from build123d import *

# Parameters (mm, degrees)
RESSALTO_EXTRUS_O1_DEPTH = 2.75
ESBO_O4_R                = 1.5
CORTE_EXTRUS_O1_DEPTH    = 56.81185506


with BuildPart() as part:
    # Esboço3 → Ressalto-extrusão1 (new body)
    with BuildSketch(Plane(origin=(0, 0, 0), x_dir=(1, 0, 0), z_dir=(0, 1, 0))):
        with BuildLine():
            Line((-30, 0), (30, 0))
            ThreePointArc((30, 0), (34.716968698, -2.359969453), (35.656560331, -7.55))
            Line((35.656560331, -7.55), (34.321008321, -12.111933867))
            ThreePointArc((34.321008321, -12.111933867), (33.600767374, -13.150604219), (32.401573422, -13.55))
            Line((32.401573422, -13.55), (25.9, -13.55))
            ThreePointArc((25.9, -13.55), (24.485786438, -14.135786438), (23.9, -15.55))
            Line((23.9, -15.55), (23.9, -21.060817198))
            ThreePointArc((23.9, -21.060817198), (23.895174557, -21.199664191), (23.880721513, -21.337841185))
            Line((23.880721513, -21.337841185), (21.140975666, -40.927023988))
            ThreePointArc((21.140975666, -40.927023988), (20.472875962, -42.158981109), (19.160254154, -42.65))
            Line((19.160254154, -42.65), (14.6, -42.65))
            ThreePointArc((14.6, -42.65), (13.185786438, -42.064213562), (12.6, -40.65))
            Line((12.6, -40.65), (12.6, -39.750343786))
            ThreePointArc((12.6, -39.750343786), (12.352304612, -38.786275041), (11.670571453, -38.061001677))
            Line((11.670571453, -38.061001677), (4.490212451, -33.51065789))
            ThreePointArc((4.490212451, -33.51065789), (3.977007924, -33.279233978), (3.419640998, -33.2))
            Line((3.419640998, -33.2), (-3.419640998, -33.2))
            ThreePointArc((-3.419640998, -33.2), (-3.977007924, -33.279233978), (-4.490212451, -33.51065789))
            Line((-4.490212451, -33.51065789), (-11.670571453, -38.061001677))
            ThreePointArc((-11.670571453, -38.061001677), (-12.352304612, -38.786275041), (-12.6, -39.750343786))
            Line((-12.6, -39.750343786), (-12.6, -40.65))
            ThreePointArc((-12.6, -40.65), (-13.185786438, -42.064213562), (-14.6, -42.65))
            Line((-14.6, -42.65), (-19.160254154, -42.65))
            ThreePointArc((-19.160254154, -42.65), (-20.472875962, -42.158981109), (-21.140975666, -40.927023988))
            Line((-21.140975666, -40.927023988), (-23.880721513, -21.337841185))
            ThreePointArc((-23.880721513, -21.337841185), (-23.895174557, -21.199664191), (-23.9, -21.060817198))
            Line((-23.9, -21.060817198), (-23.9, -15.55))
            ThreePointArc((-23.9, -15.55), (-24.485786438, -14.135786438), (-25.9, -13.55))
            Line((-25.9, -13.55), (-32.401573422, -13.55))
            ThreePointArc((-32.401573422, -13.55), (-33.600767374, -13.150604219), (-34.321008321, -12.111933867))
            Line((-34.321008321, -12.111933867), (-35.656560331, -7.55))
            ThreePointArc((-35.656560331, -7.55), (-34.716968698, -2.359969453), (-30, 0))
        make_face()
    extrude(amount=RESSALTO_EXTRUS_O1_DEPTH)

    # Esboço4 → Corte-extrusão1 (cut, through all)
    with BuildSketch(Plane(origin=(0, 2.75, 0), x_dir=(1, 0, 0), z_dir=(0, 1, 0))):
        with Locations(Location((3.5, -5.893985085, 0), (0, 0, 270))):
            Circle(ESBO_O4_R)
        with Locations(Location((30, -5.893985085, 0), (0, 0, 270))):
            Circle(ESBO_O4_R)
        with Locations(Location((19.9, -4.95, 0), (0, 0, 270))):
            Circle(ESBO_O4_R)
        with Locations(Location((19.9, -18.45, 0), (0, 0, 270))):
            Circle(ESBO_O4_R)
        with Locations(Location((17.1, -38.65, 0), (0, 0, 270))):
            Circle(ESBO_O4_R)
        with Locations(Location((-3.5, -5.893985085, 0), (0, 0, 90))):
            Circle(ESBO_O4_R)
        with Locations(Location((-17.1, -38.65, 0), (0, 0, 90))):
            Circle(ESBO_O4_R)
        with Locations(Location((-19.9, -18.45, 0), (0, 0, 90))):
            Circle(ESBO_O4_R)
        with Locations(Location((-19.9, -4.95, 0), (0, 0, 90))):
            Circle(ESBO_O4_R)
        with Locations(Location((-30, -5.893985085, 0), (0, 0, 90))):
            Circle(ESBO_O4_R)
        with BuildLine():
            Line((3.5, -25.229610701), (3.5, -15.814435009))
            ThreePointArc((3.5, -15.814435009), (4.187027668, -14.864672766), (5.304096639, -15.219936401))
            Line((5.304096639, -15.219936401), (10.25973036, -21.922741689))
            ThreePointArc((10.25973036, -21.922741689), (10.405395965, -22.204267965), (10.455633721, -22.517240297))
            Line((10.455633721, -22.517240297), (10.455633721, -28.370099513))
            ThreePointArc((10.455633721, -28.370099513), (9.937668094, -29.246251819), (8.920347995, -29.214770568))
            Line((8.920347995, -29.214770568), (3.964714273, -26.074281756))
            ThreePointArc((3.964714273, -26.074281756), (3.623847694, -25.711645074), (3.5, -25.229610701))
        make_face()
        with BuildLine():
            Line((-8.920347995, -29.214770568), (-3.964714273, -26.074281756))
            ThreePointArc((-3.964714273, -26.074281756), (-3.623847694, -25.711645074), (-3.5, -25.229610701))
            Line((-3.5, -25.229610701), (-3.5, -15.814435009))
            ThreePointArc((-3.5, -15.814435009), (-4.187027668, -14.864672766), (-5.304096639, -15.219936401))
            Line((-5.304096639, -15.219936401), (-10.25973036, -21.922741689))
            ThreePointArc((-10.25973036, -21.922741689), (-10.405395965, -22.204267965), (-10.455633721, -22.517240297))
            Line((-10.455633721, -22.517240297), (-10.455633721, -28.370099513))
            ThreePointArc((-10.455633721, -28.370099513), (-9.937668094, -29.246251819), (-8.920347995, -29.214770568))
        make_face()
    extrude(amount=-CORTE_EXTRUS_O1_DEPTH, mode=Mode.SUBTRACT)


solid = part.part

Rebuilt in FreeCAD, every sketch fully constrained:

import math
import FreeCAD as App
import Part
import Sketcher

doc = App.newDocument("Part")
body = doc.addObject("PartDesign::Body", "Body")

# Sketch on XZ plane
sketch1 = body.newObject("Sketcher::SketchObject", "Sketch")
sketch1.AttachmentSupport = (doc.getObject("XZ_Plane"), [""])
sketch1.MapMode = "FlatFace"
sketch1.addGeometry(Part.LineSegment(App.Vector(30, 0, 0), App.Vector(-30, 0, 0)), False)
sketch1.addGeometry(Part.ArcOfCircle(Part.Circle(App.Vector(-30, 5.89, 0), App.Vector(0, 0, 1), 5.89), math.radians(164), math.radians(270)), False)
sketch1.addGeometry(Part.LineSegment(App.Vector(-35.66, 7.55, 0), App.Vector(-34.32, 12.11, 0)), False)
sketch1.addGeometry(Part.ArcOfCircle(Part.Circle(App.Vector(-32.4, 11.55, 0), App.Vector(0, 0, 1), 2), math.radians(90), math.radians(164)), False)
sketch1.addGeometry(Part.LineSegment(App.Vector(-32.4, 13.55, 0), App.Vector(-25.9, 13.55, 0)), False)
sketch1.addGeometry(Part.ArcOfCircle(Part.Circle(App.Vector(-25.9, 15.55, 0), App.Vector(0, 0, 1), 2), math.radians(-90), math.radians(0)), False)
sketch1.addGeometry(Part.LineSegment(App.Vector(-23.9, 15.55, 0), App.Vector(-23.9, 21.06, 0)), False)
sketch1.addGeometry(Part.ArcOfCircle(Part.Circle(App.Vector(-21.9, 21.06, 0), App.Vector(0, 0, 1), 2), math.radians(172.04), math.radians(180)), False)
sketch1.addGeometry(Part.LineSegment(App.Vector(-23.88, 21.34, 0), App.Vector(-21.14, 40.93, 0)), False)
sketch1.addGeometry(Part.ArcOfCircle(Part.Circle(App.Vector(-19.16, 40.65, 0), App.Vector(0, 0, 1), 2), math.radians(90), math.radians(172)), False)
sketch1.addGeometry(Part.LineSegment(App.Vector(-19.16, 42.65, 0), App.Vector(-14.6, 42.65, 0)), False)
sketch1.addGeometry(Part.ArcOfCircle(Part.Circle(App.Vector(-14.6, 40.65, 0), App.Vector(0, 0, 1), 2), math.radians(0), math.radians(90)), False)
sketch1.addGeometry(Part.LineSegment(App.Vector(-12.6, 40.65, 0), App.Vector(-12.6, 39.75, 0)), False)
sketch1.addGeometry(Part.ArcOfCircle(Part.Circle(App.Vector(-10.6, 39.75, 0), App.Vector(0, 0, 1), 2), math.radians(-180), math.radians(-122)), False)
sketch1.addGeometry(Part.LineSegment(App.Vector(-11.67, 38.06, 0), App.Vector(-4.49, 33.51, 0)), False)
sketch1.addGeometry(Part.ArcOfCircle(Part.Circle(App.Vector(-3.42, 35.2, 0), App.Vector(0, 0, 1), 2), math.radians(-122), math.radians(-90)), False)
sketch1.addGeometry(Part.LineSegment(App.Vector(-3.42, 33.2, 0), App.Vector(3.42, 33.2, 0)), False)
sketch1.addGeometry(Part.ArcOfCircle(Part.Circle(App.Vector(3.42, 35.2, 0), App.Vector(0, 0, 1), 2), math.radians(-90), math.radians(-58)), False)
sketch1.addGeometry(Part.LineSegment(App.Vector(4.49, 33.51, 0), App.Vector(11.67, 38.06, 0)), False)
sketch1.addGeometry(Part.ArcOfCircle(Part.Circle(App.Vector(10.6, 39.75, 0), App.Vector(0, 0, 1), 2), math.radians(-58), math.radians(0)), False)
sketch1.addGeometry(Part.LineSegment(App.Vector(12.6, 39.75, 0), App.Vector(12.6, 40.65, 0)), False)
sketch1.addGeometry(Part.ArcOfCircle(Part.Circle(App.Vector(14.6, 40.65, 0), App.Vector(0, 0, 1), 2), math.radians(90), math.radians(180)), False)
sketch1.addGeometry(Part.LineSegment(App.Vector(14.6, 42.65, 0), App.Vector(19.16, 42.65, 0)), False)
sketch1.addGeometry(Part.ArcOfCircle(Part.Circle(App.Vector(19.16, 40.65, 0), App.Vector(0, 0, 1), 2), math.radians(8), math.radians(90)), False)
sketch1.addGeometry(Part.LineSegment(App.Vector(21.14, 40.93, 0), App.Vector(23.88, 21.34, 0)), False)
sketch1.addGeometry(Part.ArcOfCircle(Part.Circle(App.Vector(21.9, 21.06, 0), App.Vector(0, 0, 1), 2), math.radians(0), math.radians(7.96)), False)
sketch1.addGeometry(Part.LineSegment(App.Vector(23.9, 21.06, 0), App.Vector(23.9, 15.55, 0)), False)
sketch1.addGeometry(Part.ArcOfCircle(Part.Circle(App.Vector(25.9, 15.55, 0), App.Vector(0, 0, 1), 2), math.radians(-180), math.radians(-90)), False)
sketch1.addGeometry(Part.LineSegment(App.Vector(25.9, 13.55, 0), App.Vector(32.4, 13.55, 0)), False)
sketch1.addGeometry(Part.ArcOfCircle(Part.Circle(App.Vector(32.4, 11.55, 0), App.Vector(0, 0, 1), 2), math.radians(16), math.radians(90)), False)
sketch1.addGeometry(Part.LineSegment(App.Vector(34.32, 12.11, 0), App.Vector(35.66, 7.55, 0)), False)
sketch1.addGeometry(Part.ArcOfCircle(Part.Circle(App.Vector(30, 5.89, 0), App.Vector(0, 0, 1), 5.89), math.radians(-90), math.radians(16)), False)
sketch1.addConstraint(Sketcher.Constraint("Tangent", 0, 2, 1, 2))
sketch1.addConstraint(Sketcher.Constraint("Tangent", 1, 1, 2, 1))
sketch1.addConstraint(Sketcher.Constraint("Tangent", 2, 2, 3, 2))
sketch1.addConstraint(Sketcher.Constraint("Tangent", 3, 1, 4, 1))
sketch1.addConstraint(Sketcher.Constraint("Tangent", 4, 2, 5, 1))
sketch1.addConstraint(Sketcher.Constraint("Tangent", 5, 2, 6, 1))
sketch1.addConstraint(Sketcher.Constraint("Tangent", 6, 2, 7, 2))
sketch1.addConstraint(Sketcher.Constraint("Tangent", 7, 1, 8, 1))
sketch1.addConstraint(Sketcher.Constraint("Tangent", 8, 2, 9, 2))
sketch1.addConstraint(Sketcher.Constraint("Tangent", 9, 1, 10, 1))
sketch1.addConstraint(Sketcher.Constraint("Tangent", 10, 2, 11, 2))
sketch1.addConstraint(Sketcher.Constraint("Tangent", 11, 1, 12, 1))
sketch1.addConstraint(Sketcher.Constraint("Tangent", 12, 2, 13, 1))
sketch1.addConstraint(Sketcher.Constraint("Tangent", 13, 2, 14, 1))
sketch1.addConstraint(Sketcher.Constraint("Tangent", 14, 2, 15, 1))
sketch1.addConstraint(Sketcher.Constraint("Tangent", 15, 2, 16, 1))
sketch1.addConstraint(Sketcher.Constraint("Tangent", 16, 2, 17, 1))
sketch1.addConstraint(Sketcher.Constraint("Tangent", 17, 2, 18, 1))
sketch1.addConstraint(Sketcher.Constraint("Tangent", 18, 2, 19, 1))
sketch1.addConstraint(Sketcher.Constraint("Tangent", 19, 2, 20, 1))
sketch1.addConstraint(Sketcher.Constraint("Tangent", 20, 2, 21, 2))
sketch1.addConstraint(Sketcher.Constraint("Tangent", 21, 1, 22, 1))
sketch1.addConstraint(Sketcher.Constraint("Tangent", 22, 2, 23, 2))
sketch1.addConstraint(Sketcher.Constraint("Tangent", 23, 1, 24, 1))
sketch1.addConstraint(Sketcher.Constraint("Tangent", 24, 2, 25, 2))
sketch1.addConstraint(Sketcher.Constraint("Tangent", 25, 1, 26, 1))
sketch1.addConstraint(Sketcher.Constraint("Tangent", 26, 2, 27, 1))
sketch1.addConstraint(Sketcher.Constraint("Tangent", 27, 2, 28, 1))
sketch1.addConstraint(Sketcher.Constraint("Tangent", 28, 2, 29, 2))
sketch1.addConstraint(Sketcher.Constraint("Tangent", 29, 1, 30, 1))
sketch1.addConstraint(Sketcher.Constraint("Tangent", 30, 2, 31, 2))
sketch1.addConstraint(Sketcher.Constraint("Tangent", 31, 1, 0, 1))
sketch1.addConstraint(Sketcher.Constraint("Horizontal", 0))
sketch1.addConstraint(Sketcher.Constraint("Horizontal", 4))
sketch1.addConstraint(Sketcher.Constraint("Vertical", 6))
sketch1.addConstraint(Sketcher.Constraint("Horizontal", 10))
sketch1.addConstraint(Sketcher.Constraint("Vertical", 12))
sketch1.addConstraint(Sketcher.Constraint("Horizontal", 16))
sketch1.addConstraint(Sketcher.Constraint("Vertical", 20))
sketch1.addConstraint(Sketcher.Constraint("Horizontal", 22))
sketch1.addConstraint(Sketcher.Constraint("Vertical", 26))
sketch1.addConstraint(Sketcher.Constraint("Horizontal", 28))
sketch1.addConstraint(Sketcher.Constraint("Equal", 3, 5))
sketch1.addConstraint(Sketcher.Constraint("Equal", 5, 7))
sketch1.addConstraint(Sketcher.Constraint("Equal", 7, 9))
sketch1.addConstraint(Sketcher.Constraint("Equal", 9, 11))
sketch1.addConstraint(Sketcher.Constraint("Equal", 11, 13))
sketch1.addConstraint(Sketcher.Constraint("Equal", 13, 15))
sketch1.addConstraint(Sketcher.Constraint("Equal", 15, 17))
sketch1.addConstraint(Sketcher.Constraint("Equal", 17, 19))
sketch1.addConstraint(Sketcher.Constraint("Equal", 19, 21))
sketch1.addConstraint(Sketcher.Constraint("Equal", 21, 23))
sketch1.addConstraint(Sketcher.Constraint("Equal", 23, 25))
sketch1.addConstraint(Sketcher.Constraint("Equal", 25, 27))
sketch1.addConstraint(Sketcher.Constraint("Equal", 27, 29))
sketch1.addConstraint(Sketcher.Constraint("Equal", 1, 31))
sketch1.addConstraint(Sketcher.Constraint("Symmetric", 0, 2, 31, 1, -1, 1))
sketch1.addConstraint(Sketcher.Constraint("Symmetric", 13, 3, 19, 3, -2))
sketch1.addConstraint(Sketcher.Constraint("Symmetric", 9, 3, 23, 3, -2))
sketch1.addConstraint(Sketcher.Constraint("Symmetric", 7, 3, 25, 3, -2))
sketch1.addConstraint(Sketcher.Constraint("Symmetric", 3, 3, 29, 3, -2))
sketch1.addConstraint(Sketcher.Constraint("Horizontal", 14, 2, 17, 2))
sketch1.addConstraint(Sketcher.Constraint("Radius", 3, 2.0))
sketch1.addConstraint(Sketcher.Constraint("DistanceX", 0, 2, 0, 1, 60.0))
sketch1.addConstraint(Sketcher.Constraint("DistanceY", 1, 1, 3, 3, 4.0))
sketch1.addConstraint(Sketcher.Constraint("DistanceX", 5, 3, -1, 1, 25.9))
sketch1.addConstraint(Sketcher.Constraint("DistanceX", 11, 3, -1, 1, 14.6))
sketch1.addConstraint(Sketcher.Constraint("DistanceY", -1, 1, 15, 3, 35.2))
sketch1.addConstraint(Sketcher.Constraint("DistanceY", 5, 3, 9, 3, 25.1))
sketch1.addConstraint(Sketcher.Constraint("DistanceY", -1, 1, 3, 3, 11.55))
sketch1.addConstraint(Sketcher.Constraint("DistanceY", -1, 1, 13, 2, 38.061002))
sketch1.addConstraint(Sketcher.Constraint("Radius", 1, 5.893985))
sketch1.addConstraint(Sketcher.Constraint("DistanceX", 16, 1, 16, 2, 6.839282))
sketch1.addConstraint(Sketcher.Constraint("DistanceX", 10, 1, 10, 2, 4.560254))
sketch1.addConstraint(Sketcher.Constraint("DistanceY", 6, 1, 6, 2, 5.510817))
pad1 = body.newObject("PartDesign::Pad", "Pad")
pad1.Profile = sketch1
pad1.Length = 2.75
pad1.Reversed = True

# Sketch on XZ plane
sketch2 = body.newObject("Sketcher::SketchObject", "Sketch001")
sketch2.AttachmentSupport = (doc.getObject("XZ_Plane"), [""])
sketch2.MapMode = "FlatFace"
sketch2.AttachmentOffset = App.Placement(App.Vector(0, 0, -2.75), App.Rotation())
sketch2.addGeometry(Part.Circle(App.Vector(3.5, 5.9, 0), App.Vector(0, 0, 1), 1.5), False)
sketch2.addGeometry(Part.Circle(App.Vector(30, 5.9, 0), App.Vector(0, 0, 1), 1.5), False)
sketch2.addGeometry(Part.Circle(App.Vector(19.9, 5, 0), App.Vector(0, 0, 1), 1.5), False)
sketch2.addGeometry(Part.Circle(App.Vector(19.9, 18.4, 0), App.Vector(0, 0, 1), 1.5), False)
sketch2.addGeometry(Part.Circle(App.Vector(17.1, 38.6, 0), App.Vector(0, 0, 1), 1.5), False)
sketch2.addGeometry(Part.Circle(App.Vector(-3.5, 5.9, 0), App.Vector(0, 0, 1), 1.5), False)
sketch2.addGeometry(Part.Circle(App.Vector(-17.1, 38.6, 0), App.Vector(0, 0, 1), 1.5), False)
sketch2.addGeometry(Part.Circle(App.Vector(-19.9, 18.4, 0), App.Vector(0, 0, 1), 1.5), False)
sketch2.addGeometry(Part.Circle(App.Vector(-19.9, 5, 0), App.Vector(0, 0, 1), 1.5), False)
sketch2.addGeometry(Part.Circle(App.Vector(-30, 5.9, 0), App.Vector(0, 0, 1), 1.5), False)
sketch2.addGeometry(Part.LineSegment(App.Vector(3.5, 15.8, 0), App.Vector(3.5, 25.2, 0)), False)
sketch2.addGeometry(Part.ArcOfCircle(Part.Circle(App.Vector(4.5, 25.2, 0), App.Vector(0, 0, 1), 1), math.radians(122), math.radians(180)), False)
sketch2.addGeometry(Part.LineSegment(App.Vector(4, 26.1, 0), App.Vector(8.9, 29.2, 0)), False)
sketch2.addGeometry(Part.ArcOfCircle(Part.Circle(App.Vector(9.5, 28.4, 0), App.Vector(0, 0, 1), 1), math.radians(0), math.radians(122)), False)
sketch2.addGeometry(Part.LineSegment(App.Vector(10.5, 28.4, 0), App.Vector(10.5, 22.5, 0)), False)
sketch2.addGeometry(Part.ArcOfCircle(Part.Circle(App.Vector(9.5, 22.5, 0), App.Vector(0, 0, 1), 1), math.radians(-36), math.radians(0)), False)
sketch2.addGeometry(Part.LineSegment(App.Vector(10.3, 21.9, 0), App.Vector(5.3, 15.2, 0)), False)
sketch2.addGeometry(Part.ArcOfCircle(Part.Circle(App.Vector(4.5, 15.8, 0), App.Vector(0, 0, 1), 1), math.radians(-180), math.radians(-36)), False)
sketch2.addGeometry(Part.LineSegment(App.Vector(-8.9, 29.2, 0), App.Vector(-4, 26.1, 0)), False)
sketch2.addGeometry(Part.ArcOfCircle(Part.Circle(App.Vector(-4.5, 25.2, 0), App.Vector(0, 0, 1), 1), math.radians(0), math.radians(58)), False)
sketch2.addGeometry(Part.LineSegment(App.Vector(-3.5, 25.2, 0), App.Vector(-3.5, 15.8, 0)), False)
sketch2.addGeometry(Part.ArcOfCircle(Part.Circle(App.Vector(-4.5, 15.8, 0), App.Vector(0, 0, 1), 1), math.radians(-144), math.radians(0)), False)
sketch2.addGeometry(Part.LineSegment(App.Vector(-5.3, 15.2, 0), App.Vector(-10.3, 21.9, 0)), False)
sketch2.addGeometry(Part.ArcOfCircle(Part.Circle(App.Vector(-9.5, 22.5, 0), App.Vector(0, 0, 1), 1), math.radians(180), math.radians(216)), False)
sketch2.addGeometry(Part.LineSegment(App.Vector(-10.5, 22.5, 0), App.Vector(-10.5, 28.4, 0)), False)
sketch2.addGeometry(Part.ArcOfCircle(Part.Circle(App.Vector(-9.5, 28.4, 0), App.Vector(0, 0, 1), 1), math.radians(58), math.radians(180)), False)
sketch2.addConstraint(Sketcher.Constraint("Tangent", 10, 2, 11, 2))
sketch2.addConstraint(Sketcher.Constraint("Tangent", 11, 1, 12, 1))
sketch2.addConstraint(Sketcher.Constraint("Tangent", 12, 2, 13, 2))
sketch2.addConstraint(Sketcher.Constraint("Tangent", 13, 1, 14, 1))
sketch2.addConstraint(Sketcher.Constraint("Tangent", 14, 2, 15, 2))
sketch2.addConstraint(Sketcher.Constraint("Tangent", 15, 1, 16, 1))
sketch2.addConstraint(Sketcher.Constraint("Tangent", 16, 2, 17, 2))
sketch2.addConstraint(Sketcher.Constraint("Tangent", 17, 1, 10, 1))
sketch2.addConstraint(Sketcher.Constraint("Tangent", 18, 2, 19, 2))
sketch2.addConstraint(Sketcher.Constraint("Tangent", 19, 1, 20, 1))
sketch2.addConstraint(Sketcher.Constraint("Tangent", 20, 2, 21, 2))
sketch2.addConstraint(Sketcher.Constraint("Tangent", 21, 1, 22, 1))
sketch2.addConstraint(Sketcher.Constraint("Tangent", 22, 2, 23, 2))
sketch2.addConstraint(Sketcher.Constraint("Tangent", 23, 1, 24, 1))
sketch2.addConstraint(Sketcher.Constraint("Tangent", 24, 2, 25, 2))
sketch2.addConstraint(Sketcher.Constraint("Tangent", 25, 1, 18, 1))
sketch2.addConstraint(Sketcher.Constraint("Vertical", 10))
sketch2.addConstraint(Sketcher.Constraint("Vertical", 14))
sketch2.addConstraint(Sketcher.Constraint("Vertical", 20))
sketch2.addConstraint(Sketcher.Constraint("Vertical", 24))
sketch2.addConstraint(Sketcher.Constraint("Equal", 0, 1))
sketch2.addConstraint(Sketcher.Constraint("Equal", 1, 2))
sketch2.addConstraint(Sketcher.Constraint("Equal", 2, 3))
sketch2.addConstraint(Sketcher.Constraint("Equal", 3, 4))
sketch2.addConstraint(Sketcher.Constraint("Equal", 4, 5))
sketch2.addConstraint(Sketcher.Constraint("Equal", 5, 6))
sketch2.addConstraint(Sketcher.Constraint("Equal", 6, 7))
sketch2.addConstraint(Sketcher.Constraint("Equal", 7, 8))
sketch2.addConstraint(Sketcher.Constraint("Equal", 8, 9))
sketch2.addConstraint(Sketcher.Constraint("Equal", 11, 13))
sketch2.addConstraint(Sketcher.Constraint("Equal", 13, 15))
sketch2.addConstraint(Sketcher.Constraint("Equal", 15, 17))
sketch2.addConstraint(Sketcher.Constraint("Equal", 17, 19))
sketch2.addConstraint(Sketcher.Constraint("Equal", 19, 21))
sketch2.addConstraint(Sketcher.Constraint("Equal", 21, 23))
sketch2.addConstraint(Sketcher.Constraint("Equal", 23, 25))
sketch2.addConstraint(Sketcher.Constraint("Symmetric", 0, 3, 5, 3, -2))
sketch2.addConstraint(Sketcher.Constraint("Symmetric", 4, 3, 6, 3, -2))
sketch2.addConstraint(Sketcher.Constraint("Symmetric", 3, 3, 7, 3, -2))
sketch2.addConstraint(Sketcher.Constraint("Symmetric", 2, 3, 8, 3, -2))
sketch2.addConstraint(Sketcher.Constraint("Symmetric", 1, 3, 9, 3, -2))
sketch2.addConstraint(Sketcher.Constraint("Symmetric", 11, 3, 19, 3, -2))
sketch2.addConstraint(Sketcher.Constraint("Symmetric", 15, 3, 23, 3, -2))
sketch2.addConstraint(Sketcher.Constraint("Horizontal", 0, 3, 1, 3))
sketch2.addConstraint(Sketcher.Constraint("Horizontal", 17, 3, 21, 3))
sketch2.addConstraint(Sketcher.Constraint("Horizontal", 13, 3, 25, 3))
sketch2.addConstraint(Sketcher.Constraint("Vertical", 2, 3, 3, 3))
sketch2.addConstraint(Sketcher.Constraint("Vertical", 0, 3, 10, 2))
sketch2.addConstraint(Sketcher.Constraint("Diameter", 0, 3.0))
sketch2.addConstraint(Sketcher.Constraint("Radius", 11, 1.0))
sketch2.addConstraint(Sketcher.Constraint("DistanceX", -1, 1, 1, 3, 30.0))
sketch2.addConstraint(Sketcher.Constraint("DistanceX", 5, 3, 0, 3, 7.0))
sketch2.addConstraint(Sketcher.Constraint("DistanceX", 6, 3, 3, 3, 37.0))
sketch2.addConstraint(Sketcher.Constraint("DistanceX", -1, 1, 2, 3, 19.9))
sketch2.addConstraint(Sketcher.Constraint("DistanceY", 2, 3, 3, 3, 13.5))
sketch2.addConstraint(Sketcher.Constraint("DistanceY", 3, 3, 4, 3, 20.2))
sketch2.addConstraint(Sketcher.Constraint("DistanceY", -1, 1, 2, 3, 4.95))
sketch2.addConstraint(Sketcher.Constraint("DistanceY", 14, 2, 14, 1, 5.852859))
sketch2.addConstraint(Sketcher.Constraint("DistanceY", -1, 1, 13, 3, 28.3701))
sketch2.addConstraint(Sketcher.Constraint("DistanceY", 15, 1, 14, 2, 0.594499))
sketch2.addConstraint(Sketcher.Constraint("Distance", 12, 5.866939))
sketch2.addConstraint(Sketcher.Constraint("Distance", 16, 8.335821))
sketch2.addConstraint(Sketcher.Constraint("DistanceY", 0, 3, 17, 3, 9.92045))
pocket1 = body.newObject("PartDesign::Pocket", "Pocket")
pocket1.Profile = sketch2
pocket1.Type = "ThroughAll"
pocket1.Reversed = True

doc.recompute()
